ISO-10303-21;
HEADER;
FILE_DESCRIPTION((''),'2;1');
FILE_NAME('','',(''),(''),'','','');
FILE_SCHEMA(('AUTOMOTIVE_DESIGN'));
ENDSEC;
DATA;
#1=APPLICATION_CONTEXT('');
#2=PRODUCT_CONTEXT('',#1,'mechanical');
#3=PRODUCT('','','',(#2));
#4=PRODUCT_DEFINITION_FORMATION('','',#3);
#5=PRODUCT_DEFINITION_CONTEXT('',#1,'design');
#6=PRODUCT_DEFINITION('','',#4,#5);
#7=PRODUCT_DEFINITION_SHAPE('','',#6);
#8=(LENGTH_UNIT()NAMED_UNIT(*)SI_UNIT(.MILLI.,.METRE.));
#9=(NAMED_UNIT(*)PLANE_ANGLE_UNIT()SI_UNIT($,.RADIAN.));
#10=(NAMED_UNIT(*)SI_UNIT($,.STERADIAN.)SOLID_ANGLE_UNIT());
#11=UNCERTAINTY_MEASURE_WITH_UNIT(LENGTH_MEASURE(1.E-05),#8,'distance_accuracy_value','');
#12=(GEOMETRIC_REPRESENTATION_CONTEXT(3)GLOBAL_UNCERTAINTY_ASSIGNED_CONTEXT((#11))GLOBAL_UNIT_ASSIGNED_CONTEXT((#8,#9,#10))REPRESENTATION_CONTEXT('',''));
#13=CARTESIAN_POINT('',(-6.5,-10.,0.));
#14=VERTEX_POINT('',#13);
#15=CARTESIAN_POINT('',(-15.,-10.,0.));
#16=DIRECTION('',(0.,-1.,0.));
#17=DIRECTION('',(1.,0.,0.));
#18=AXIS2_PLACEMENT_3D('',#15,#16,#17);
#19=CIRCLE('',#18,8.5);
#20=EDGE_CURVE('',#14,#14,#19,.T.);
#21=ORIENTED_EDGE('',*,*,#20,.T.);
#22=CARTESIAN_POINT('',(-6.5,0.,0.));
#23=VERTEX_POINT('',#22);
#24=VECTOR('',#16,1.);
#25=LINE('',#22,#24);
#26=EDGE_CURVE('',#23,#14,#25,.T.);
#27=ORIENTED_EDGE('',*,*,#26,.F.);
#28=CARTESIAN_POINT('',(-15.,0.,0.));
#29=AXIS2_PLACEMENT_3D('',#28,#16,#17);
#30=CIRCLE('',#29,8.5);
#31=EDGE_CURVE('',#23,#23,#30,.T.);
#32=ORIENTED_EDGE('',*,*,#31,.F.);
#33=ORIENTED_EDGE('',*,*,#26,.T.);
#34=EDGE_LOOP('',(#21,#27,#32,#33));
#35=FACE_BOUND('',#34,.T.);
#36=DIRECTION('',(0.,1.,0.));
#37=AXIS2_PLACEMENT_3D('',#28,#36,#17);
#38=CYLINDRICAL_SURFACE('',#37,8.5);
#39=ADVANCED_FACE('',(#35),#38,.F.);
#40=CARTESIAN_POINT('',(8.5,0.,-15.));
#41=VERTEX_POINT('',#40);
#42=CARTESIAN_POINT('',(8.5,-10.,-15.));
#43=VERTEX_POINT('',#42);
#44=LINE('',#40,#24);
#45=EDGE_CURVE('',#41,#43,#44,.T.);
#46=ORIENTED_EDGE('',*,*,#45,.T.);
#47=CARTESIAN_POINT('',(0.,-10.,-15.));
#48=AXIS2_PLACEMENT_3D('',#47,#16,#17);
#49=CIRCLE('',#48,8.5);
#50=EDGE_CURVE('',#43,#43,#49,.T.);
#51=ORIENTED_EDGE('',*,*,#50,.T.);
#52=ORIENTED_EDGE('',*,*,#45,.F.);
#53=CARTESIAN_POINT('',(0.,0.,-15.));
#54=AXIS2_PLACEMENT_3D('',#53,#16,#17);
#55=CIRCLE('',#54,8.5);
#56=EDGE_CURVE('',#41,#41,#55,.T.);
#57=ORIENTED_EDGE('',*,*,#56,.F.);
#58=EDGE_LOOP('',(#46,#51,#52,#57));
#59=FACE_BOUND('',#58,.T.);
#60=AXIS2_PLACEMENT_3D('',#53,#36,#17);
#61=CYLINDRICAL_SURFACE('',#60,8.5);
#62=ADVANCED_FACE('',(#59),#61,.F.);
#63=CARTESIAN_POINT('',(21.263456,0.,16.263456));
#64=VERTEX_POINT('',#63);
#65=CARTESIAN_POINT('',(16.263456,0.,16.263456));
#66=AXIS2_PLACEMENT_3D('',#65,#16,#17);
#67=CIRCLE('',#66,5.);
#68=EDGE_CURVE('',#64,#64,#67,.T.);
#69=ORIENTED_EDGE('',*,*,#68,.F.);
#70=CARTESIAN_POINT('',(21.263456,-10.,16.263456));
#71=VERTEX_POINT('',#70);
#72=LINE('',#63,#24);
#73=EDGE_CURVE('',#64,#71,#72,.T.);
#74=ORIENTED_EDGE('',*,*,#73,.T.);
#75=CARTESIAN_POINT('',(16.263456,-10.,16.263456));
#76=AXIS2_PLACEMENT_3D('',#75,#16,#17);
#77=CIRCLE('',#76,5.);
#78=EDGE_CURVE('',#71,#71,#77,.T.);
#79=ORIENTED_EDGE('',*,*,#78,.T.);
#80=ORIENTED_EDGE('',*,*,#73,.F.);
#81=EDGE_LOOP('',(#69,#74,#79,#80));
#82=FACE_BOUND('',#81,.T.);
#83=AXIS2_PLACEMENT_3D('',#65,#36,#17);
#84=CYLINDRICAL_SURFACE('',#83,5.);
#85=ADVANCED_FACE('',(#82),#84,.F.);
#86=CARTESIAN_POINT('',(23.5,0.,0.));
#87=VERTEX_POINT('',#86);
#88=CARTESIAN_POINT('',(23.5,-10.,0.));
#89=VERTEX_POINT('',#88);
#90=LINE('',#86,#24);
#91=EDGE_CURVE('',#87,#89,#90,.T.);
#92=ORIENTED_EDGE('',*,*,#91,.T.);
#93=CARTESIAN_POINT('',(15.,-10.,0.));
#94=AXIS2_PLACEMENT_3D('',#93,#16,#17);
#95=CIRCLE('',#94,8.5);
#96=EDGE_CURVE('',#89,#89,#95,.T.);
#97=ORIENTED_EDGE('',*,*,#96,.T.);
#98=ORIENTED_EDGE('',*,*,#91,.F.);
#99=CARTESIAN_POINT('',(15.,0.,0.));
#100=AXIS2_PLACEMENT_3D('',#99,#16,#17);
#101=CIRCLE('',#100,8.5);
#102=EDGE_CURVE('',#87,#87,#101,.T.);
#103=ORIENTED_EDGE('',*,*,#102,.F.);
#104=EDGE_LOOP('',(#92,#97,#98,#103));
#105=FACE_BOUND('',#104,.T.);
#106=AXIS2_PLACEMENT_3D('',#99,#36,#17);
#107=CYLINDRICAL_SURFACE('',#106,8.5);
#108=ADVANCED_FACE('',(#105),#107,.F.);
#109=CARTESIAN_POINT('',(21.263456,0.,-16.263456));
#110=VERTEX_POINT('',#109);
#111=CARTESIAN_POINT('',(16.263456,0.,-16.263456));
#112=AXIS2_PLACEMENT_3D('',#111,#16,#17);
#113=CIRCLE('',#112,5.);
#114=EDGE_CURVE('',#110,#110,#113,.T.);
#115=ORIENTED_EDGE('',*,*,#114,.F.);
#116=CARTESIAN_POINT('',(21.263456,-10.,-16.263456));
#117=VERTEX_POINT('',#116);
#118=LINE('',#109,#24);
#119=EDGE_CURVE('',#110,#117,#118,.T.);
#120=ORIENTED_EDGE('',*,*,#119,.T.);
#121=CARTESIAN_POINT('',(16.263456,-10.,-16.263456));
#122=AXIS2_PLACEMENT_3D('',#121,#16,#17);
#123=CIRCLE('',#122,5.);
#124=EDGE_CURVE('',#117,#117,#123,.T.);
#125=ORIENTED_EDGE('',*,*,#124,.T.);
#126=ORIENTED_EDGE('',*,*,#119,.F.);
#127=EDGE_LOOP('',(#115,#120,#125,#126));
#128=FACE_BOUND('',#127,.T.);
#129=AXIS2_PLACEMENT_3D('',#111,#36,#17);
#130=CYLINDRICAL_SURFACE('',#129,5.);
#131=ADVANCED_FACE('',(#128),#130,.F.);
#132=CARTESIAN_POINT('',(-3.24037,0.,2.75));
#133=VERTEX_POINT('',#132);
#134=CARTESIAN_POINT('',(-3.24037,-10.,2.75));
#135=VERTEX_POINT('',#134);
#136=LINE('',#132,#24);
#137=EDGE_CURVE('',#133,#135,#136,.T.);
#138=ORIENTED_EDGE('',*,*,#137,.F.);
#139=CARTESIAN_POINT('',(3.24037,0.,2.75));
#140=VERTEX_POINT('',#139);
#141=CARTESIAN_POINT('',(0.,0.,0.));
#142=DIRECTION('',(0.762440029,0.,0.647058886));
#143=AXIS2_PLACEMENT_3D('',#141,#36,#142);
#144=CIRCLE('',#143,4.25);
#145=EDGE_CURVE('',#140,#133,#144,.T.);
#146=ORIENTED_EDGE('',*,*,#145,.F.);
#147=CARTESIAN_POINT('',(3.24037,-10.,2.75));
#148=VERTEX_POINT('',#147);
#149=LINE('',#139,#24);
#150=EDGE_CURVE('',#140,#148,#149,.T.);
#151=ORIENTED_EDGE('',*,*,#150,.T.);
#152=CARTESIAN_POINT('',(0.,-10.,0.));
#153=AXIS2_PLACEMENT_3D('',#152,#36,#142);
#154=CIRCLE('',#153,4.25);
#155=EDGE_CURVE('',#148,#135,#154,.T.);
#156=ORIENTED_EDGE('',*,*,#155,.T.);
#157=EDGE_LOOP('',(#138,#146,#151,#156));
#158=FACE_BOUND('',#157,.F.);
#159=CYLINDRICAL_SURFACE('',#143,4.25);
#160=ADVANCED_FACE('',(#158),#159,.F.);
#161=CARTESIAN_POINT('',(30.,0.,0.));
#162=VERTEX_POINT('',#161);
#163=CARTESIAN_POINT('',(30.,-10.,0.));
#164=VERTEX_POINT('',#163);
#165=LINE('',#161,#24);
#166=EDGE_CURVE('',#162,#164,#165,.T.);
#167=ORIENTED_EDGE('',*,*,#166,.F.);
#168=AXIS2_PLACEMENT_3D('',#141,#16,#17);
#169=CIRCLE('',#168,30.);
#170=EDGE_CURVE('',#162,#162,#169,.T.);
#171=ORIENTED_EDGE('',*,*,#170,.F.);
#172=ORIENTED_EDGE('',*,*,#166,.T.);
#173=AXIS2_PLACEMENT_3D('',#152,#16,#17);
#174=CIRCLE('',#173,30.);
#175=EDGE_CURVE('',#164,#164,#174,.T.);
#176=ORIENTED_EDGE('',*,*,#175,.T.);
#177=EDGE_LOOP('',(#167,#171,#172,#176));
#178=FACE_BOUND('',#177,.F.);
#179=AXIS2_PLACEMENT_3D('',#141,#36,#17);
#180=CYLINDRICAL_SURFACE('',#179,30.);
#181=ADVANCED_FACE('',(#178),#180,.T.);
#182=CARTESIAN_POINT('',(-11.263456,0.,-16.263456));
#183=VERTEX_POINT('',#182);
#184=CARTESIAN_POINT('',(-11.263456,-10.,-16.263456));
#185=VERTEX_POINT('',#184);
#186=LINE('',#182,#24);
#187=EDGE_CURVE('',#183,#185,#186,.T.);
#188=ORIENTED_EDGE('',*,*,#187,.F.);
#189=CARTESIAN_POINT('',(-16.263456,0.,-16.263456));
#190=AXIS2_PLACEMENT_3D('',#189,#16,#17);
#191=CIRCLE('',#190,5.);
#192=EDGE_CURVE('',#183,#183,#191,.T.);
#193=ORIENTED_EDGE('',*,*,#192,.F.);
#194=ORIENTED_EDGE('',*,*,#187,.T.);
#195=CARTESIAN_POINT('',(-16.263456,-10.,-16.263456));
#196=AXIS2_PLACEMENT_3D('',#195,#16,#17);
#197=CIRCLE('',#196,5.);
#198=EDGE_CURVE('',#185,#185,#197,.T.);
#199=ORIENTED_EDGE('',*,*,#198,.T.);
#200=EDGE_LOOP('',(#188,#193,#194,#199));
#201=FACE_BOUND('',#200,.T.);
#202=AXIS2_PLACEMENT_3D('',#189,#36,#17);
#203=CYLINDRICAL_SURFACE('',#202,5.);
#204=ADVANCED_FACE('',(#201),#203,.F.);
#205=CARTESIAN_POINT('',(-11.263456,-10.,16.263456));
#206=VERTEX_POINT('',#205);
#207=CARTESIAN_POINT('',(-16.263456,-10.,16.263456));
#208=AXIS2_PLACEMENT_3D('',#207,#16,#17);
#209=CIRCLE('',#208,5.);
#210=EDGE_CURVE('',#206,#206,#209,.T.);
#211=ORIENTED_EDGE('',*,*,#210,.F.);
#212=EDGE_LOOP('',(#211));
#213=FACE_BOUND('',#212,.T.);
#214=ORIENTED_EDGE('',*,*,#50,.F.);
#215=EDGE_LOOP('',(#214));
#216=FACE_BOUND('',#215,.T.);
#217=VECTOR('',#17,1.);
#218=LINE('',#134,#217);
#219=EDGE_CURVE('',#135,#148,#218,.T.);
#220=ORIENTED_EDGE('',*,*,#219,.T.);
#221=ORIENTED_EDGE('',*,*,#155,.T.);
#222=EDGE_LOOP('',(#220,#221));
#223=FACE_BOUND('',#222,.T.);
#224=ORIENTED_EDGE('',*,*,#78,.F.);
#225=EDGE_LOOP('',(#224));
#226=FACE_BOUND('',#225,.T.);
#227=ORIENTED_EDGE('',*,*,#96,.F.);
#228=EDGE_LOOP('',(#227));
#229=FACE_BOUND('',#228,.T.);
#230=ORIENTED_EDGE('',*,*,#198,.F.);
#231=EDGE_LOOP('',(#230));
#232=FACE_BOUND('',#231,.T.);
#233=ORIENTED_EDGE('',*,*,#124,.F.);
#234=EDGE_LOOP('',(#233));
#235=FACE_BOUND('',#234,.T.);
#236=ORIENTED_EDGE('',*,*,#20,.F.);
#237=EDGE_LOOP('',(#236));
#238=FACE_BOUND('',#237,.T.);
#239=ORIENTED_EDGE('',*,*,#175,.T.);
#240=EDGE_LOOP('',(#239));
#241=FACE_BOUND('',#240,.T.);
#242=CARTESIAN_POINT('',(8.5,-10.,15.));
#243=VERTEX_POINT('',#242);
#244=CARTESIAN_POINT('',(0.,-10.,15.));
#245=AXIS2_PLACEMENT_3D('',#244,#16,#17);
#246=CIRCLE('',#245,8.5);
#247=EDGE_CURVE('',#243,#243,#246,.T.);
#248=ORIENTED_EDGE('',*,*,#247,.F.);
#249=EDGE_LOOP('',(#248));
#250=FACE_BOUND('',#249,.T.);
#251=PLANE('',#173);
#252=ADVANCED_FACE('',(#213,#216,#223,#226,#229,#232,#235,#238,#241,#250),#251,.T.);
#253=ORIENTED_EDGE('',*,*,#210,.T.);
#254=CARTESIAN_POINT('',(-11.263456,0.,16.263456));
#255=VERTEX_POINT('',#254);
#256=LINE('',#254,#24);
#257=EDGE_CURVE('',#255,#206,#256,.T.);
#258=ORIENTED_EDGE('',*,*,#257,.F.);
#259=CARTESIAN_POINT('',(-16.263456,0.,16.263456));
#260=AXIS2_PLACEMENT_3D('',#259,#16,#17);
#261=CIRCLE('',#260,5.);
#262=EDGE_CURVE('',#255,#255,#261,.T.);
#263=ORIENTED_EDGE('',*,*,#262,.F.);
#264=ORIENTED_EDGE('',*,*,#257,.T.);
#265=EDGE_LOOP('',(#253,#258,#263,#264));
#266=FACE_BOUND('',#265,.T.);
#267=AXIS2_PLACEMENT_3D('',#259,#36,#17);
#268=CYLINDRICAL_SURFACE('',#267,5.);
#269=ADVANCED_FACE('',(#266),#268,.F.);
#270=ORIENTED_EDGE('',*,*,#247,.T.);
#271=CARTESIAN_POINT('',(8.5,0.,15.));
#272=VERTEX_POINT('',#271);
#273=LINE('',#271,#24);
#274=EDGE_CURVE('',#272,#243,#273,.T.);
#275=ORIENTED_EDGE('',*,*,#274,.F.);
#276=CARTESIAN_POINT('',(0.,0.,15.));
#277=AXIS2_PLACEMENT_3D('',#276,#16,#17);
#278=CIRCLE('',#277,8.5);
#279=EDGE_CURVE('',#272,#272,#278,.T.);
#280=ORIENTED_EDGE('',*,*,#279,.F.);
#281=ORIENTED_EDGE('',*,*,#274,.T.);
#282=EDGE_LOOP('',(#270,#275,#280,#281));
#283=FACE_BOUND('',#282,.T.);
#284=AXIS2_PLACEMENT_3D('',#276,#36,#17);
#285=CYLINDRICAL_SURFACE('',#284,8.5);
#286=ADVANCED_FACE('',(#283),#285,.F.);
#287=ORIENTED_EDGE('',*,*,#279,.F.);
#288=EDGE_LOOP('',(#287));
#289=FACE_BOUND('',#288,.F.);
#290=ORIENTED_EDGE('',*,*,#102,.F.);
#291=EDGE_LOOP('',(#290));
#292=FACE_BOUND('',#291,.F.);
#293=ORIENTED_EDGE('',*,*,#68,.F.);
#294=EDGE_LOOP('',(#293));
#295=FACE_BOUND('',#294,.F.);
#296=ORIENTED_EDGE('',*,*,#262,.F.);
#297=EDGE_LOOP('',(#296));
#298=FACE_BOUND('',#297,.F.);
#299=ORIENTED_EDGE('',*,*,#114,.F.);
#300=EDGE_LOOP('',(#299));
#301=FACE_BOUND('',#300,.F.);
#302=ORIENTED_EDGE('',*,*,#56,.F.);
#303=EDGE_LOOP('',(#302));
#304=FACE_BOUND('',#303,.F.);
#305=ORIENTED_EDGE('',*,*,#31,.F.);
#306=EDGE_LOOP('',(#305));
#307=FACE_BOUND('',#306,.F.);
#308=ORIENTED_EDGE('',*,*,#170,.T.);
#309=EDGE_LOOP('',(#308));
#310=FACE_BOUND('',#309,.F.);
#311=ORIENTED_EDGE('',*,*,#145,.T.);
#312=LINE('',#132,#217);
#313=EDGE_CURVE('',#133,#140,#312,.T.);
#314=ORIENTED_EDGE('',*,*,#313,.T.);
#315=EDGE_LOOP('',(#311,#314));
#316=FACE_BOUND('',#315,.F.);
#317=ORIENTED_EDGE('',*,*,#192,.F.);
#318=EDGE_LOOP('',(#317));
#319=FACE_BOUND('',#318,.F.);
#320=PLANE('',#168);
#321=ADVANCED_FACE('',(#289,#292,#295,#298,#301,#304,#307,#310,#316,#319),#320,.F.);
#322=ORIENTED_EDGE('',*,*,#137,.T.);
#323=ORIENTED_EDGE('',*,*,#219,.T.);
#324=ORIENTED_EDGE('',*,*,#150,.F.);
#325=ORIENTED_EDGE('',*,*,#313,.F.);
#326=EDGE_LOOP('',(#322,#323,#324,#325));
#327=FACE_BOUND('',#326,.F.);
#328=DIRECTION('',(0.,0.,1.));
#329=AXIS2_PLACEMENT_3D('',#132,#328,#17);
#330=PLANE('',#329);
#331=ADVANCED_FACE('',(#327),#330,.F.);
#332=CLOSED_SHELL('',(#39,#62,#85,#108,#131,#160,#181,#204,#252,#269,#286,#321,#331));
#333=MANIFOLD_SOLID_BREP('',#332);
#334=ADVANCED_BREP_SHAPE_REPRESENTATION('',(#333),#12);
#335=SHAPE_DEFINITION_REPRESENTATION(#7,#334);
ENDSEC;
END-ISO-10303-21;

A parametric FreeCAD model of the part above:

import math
import FreeCAD as App
import Part
import Sketcher
Q = App.Units.Quantity

doc = App.newDocument("Part")
body = doc.addObject("PartDesign::Body", "Body")

sketch1 = doc.addObject("Sketcher::SketchObject", "Sketch")
body.addObject(sketch1)
sketch1.AttachmentSupport = (doc.XZ_Plane, [""])
sketch1.MapMode = "FlatFace"
sketch1.addGeometry([
    Part.Circle(App.Vector(0, 0, 0), App.Vector(0, 0, 1), 30),
    Part.Circle(App.Vector(-16.3, -16.3, 0), App.Vector(0, 0, 1), 5),
    Part.Circle(App.Vector(0, -15, 0), App.Vector(0, 0, 1), 8.5),
    Part.Circle(App.Vector(16.3, -16.3, 0), App.Vector(0, 0, 1), 5),
    Part.LineSegment(App.Vector(-3.2, 2.8, 0), App.Vector(3.2, 2.8, 0)),
    Part.ArcOfCircle(Part.Circle(App.Vector(0, 0, 0), App.Vector(0, 0, 1), 4.2), math.radians(140), math.radians(400)),
    Part.Circle(App.Vector(-15, 0, 0), App.Vector(0, 0, 1), 8.5),
    Part.Circle(App.Vector(-16.3, 16.3, 0), App.Vector(0, 0, 1), 5),
    Part.Circle(App.Vector(15, 0, 0), App.Vector(0, 0, 1), 8.5),
    Part.Circle(App.Vector(0, 15, 0), App.Vector(0, 0, 1), 8.5),
    Part.Circle(App.Vector(16.3, 16.3, 0), App.Vector(0, 0, 1), 5),
], False)
sketch1.addConstraint([
    Sketcher.Constraint("Coincident", 4, 1, 5, 1),
    Sketcher.Constraint("Coincident", 5, 2, 4, 2),
    Sketcher.Constraint("Horizontal", 4),
    Sketcher.Constraint("Coincident", 0, 3, -1, 1),
    Sketcher.Constraint("Coincident", 5, 3, -1, 1),
    Sketcher.Constraint("Equal", 1, 3),
    Sketcher.Constraint("Equal", 2, 6),
    Sketcher.Constraint("Equal", 3, 7),
    Sketcher.Constraint("Equal", 6, 8),
    Sketcher.Constraint("Equal", 8, 9),
    Sketcher.Constraint("Equal", 7, 10),
    Sketcher.Constraint("Symmetric", 3, 3, 7, 3, -1, 1),
    Sketcher.Constraint("Symmetric", 6, 3, 8, 3, -1, 1),
    Sketcher.Constraint("Symmetric", 2, 3, 9, 3, -1, 1),
    Sketcher.Constraint("Symmetric", 1, 3, 10, 3, -1, 1),
    Sketcher.Constraint("Symmetric", 1, 3, 3, 3, -2),
    Sketcher.Constraint("PointOnObject", 2, 3, -2),
    Sketcher.Constraint("PointOnObject", 6, 3, -1),
    Sketcher.Constraint("Diameter", 0, Q("60 mm")),
    Sketcher.Constraint("Diameter", 1, Q("10 mm")),
    Sketcher.Constraint("Diameter", 2, Q("17 mm")),
    Sketcher.Constraint("Radius", 5, Q("4.25 mm")),
    Sketcher.Constraint("DistanceY", 2, 3, -1, 1, Q("15 mm")),
    Sketcher.Constraint("DistanceX", 6, 3, -1, 1, Q("15 mm")),
    Sketcher.Constraint("DistanceY", -1, 1, 4, 1, Q("2.75 mm")),
    Sketcher.Constraint("DistanceX", 1, 3, -1, 1, Q("16.263456 mm")),
    Sketcher.Constraint("DistanceY", 1, 3, -1, 1, Q("16.263456 mm")),
])
pad1 = doc.addObject("PartDesign::Pad", "Pad")
body.addObject(pad1)
pad1.Profile = sketch1
pad1.Length = 10

doc.recompute()
